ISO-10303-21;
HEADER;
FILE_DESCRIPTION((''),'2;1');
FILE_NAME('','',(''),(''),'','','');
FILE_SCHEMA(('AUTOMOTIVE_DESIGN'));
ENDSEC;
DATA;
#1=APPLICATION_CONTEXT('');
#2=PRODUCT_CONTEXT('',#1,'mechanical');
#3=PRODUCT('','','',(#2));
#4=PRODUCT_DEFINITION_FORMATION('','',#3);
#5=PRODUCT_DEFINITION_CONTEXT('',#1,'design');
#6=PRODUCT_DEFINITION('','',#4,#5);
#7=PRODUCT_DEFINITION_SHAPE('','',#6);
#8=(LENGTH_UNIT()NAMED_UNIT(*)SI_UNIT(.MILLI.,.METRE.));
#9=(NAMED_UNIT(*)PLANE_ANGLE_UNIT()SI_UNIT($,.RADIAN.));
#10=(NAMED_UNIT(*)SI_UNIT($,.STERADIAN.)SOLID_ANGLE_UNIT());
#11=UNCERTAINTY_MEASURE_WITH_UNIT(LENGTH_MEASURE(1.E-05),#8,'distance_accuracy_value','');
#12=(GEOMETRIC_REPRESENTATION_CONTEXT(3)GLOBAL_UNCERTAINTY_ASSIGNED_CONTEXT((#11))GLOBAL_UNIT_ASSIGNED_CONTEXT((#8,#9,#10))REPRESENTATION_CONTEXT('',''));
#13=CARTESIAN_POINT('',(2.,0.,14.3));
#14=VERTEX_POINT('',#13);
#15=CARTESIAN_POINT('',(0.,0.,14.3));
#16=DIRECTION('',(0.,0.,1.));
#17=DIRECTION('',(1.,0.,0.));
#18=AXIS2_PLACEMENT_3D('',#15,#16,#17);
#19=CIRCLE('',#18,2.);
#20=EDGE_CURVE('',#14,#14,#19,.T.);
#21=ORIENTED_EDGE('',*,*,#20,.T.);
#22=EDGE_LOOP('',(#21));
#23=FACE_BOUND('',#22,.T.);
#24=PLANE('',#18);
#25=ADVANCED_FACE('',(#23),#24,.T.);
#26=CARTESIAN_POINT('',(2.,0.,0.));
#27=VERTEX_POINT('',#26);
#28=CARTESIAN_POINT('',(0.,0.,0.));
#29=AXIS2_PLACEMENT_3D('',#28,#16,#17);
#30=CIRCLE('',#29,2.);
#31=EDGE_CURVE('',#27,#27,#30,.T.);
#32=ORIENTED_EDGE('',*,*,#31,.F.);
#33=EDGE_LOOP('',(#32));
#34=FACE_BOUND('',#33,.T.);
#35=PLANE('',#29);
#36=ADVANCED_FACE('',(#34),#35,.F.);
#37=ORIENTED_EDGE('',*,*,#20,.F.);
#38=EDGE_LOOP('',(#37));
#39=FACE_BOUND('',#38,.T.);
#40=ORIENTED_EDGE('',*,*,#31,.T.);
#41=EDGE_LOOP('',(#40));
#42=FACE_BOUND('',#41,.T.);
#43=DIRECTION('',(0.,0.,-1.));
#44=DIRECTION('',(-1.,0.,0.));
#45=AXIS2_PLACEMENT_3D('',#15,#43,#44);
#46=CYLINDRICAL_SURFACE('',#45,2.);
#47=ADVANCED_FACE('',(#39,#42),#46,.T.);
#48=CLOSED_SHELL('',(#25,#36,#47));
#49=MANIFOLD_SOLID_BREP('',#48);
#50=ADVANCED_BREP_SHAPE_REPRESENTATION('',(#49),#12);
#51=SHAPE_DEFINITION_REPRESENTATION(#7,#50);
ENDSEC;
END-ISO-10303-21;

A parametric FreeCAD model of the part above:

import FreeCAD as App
import Part
import Sketcher

V = App.Vector
Q = App.Units.Quantity

doc = App.newDocument("Part")
params = doc.addObject("Spreadsheet::Sheet", "Params")
for row, (alias, value) in enumerate([
    ("sketch1_diameter", "4 mm"),
    ("pad1_length", "14.3 mm"),
], start=1):
    params.set(f"A{row}", alias)
    params.set(f"B{row}", "=" + value)
    params.setAlias(f"B{row}", alias)

body = doc.addObject("PartDesign::Body", "Body")

# Sketch on XY plane
sketch1 = doc.addObject("Sketcher::SketchObject", "Sketch")
body.addObject(sketch1)
sketch1.AttachmentSupport = (doc.XY_Plane, [""])
sketch1.MapMode = "FlatFace"
sketch1.addGeometry(Part.Circle(V(0, 0, 0), V(0, 0, 1), 2), False)
sketch1.addConstraint(Sketcher.Constraint("Coincident", 0, 3, -1, 1))
sketch1.addConstraint(Sketcher.Constraint("Diameter", 0, Q("4 mm")))
sketch1.setExpression("Constraints[1]", "Params.sketch1_diameter")
pad1 = doc.addObject("PartDesign::Pad", "Pad")
body.addObject(pad1)
pad1.Profile = sketch1
pad1.setExpression("Length", "Params.pad1_length")

doc.recompute()
